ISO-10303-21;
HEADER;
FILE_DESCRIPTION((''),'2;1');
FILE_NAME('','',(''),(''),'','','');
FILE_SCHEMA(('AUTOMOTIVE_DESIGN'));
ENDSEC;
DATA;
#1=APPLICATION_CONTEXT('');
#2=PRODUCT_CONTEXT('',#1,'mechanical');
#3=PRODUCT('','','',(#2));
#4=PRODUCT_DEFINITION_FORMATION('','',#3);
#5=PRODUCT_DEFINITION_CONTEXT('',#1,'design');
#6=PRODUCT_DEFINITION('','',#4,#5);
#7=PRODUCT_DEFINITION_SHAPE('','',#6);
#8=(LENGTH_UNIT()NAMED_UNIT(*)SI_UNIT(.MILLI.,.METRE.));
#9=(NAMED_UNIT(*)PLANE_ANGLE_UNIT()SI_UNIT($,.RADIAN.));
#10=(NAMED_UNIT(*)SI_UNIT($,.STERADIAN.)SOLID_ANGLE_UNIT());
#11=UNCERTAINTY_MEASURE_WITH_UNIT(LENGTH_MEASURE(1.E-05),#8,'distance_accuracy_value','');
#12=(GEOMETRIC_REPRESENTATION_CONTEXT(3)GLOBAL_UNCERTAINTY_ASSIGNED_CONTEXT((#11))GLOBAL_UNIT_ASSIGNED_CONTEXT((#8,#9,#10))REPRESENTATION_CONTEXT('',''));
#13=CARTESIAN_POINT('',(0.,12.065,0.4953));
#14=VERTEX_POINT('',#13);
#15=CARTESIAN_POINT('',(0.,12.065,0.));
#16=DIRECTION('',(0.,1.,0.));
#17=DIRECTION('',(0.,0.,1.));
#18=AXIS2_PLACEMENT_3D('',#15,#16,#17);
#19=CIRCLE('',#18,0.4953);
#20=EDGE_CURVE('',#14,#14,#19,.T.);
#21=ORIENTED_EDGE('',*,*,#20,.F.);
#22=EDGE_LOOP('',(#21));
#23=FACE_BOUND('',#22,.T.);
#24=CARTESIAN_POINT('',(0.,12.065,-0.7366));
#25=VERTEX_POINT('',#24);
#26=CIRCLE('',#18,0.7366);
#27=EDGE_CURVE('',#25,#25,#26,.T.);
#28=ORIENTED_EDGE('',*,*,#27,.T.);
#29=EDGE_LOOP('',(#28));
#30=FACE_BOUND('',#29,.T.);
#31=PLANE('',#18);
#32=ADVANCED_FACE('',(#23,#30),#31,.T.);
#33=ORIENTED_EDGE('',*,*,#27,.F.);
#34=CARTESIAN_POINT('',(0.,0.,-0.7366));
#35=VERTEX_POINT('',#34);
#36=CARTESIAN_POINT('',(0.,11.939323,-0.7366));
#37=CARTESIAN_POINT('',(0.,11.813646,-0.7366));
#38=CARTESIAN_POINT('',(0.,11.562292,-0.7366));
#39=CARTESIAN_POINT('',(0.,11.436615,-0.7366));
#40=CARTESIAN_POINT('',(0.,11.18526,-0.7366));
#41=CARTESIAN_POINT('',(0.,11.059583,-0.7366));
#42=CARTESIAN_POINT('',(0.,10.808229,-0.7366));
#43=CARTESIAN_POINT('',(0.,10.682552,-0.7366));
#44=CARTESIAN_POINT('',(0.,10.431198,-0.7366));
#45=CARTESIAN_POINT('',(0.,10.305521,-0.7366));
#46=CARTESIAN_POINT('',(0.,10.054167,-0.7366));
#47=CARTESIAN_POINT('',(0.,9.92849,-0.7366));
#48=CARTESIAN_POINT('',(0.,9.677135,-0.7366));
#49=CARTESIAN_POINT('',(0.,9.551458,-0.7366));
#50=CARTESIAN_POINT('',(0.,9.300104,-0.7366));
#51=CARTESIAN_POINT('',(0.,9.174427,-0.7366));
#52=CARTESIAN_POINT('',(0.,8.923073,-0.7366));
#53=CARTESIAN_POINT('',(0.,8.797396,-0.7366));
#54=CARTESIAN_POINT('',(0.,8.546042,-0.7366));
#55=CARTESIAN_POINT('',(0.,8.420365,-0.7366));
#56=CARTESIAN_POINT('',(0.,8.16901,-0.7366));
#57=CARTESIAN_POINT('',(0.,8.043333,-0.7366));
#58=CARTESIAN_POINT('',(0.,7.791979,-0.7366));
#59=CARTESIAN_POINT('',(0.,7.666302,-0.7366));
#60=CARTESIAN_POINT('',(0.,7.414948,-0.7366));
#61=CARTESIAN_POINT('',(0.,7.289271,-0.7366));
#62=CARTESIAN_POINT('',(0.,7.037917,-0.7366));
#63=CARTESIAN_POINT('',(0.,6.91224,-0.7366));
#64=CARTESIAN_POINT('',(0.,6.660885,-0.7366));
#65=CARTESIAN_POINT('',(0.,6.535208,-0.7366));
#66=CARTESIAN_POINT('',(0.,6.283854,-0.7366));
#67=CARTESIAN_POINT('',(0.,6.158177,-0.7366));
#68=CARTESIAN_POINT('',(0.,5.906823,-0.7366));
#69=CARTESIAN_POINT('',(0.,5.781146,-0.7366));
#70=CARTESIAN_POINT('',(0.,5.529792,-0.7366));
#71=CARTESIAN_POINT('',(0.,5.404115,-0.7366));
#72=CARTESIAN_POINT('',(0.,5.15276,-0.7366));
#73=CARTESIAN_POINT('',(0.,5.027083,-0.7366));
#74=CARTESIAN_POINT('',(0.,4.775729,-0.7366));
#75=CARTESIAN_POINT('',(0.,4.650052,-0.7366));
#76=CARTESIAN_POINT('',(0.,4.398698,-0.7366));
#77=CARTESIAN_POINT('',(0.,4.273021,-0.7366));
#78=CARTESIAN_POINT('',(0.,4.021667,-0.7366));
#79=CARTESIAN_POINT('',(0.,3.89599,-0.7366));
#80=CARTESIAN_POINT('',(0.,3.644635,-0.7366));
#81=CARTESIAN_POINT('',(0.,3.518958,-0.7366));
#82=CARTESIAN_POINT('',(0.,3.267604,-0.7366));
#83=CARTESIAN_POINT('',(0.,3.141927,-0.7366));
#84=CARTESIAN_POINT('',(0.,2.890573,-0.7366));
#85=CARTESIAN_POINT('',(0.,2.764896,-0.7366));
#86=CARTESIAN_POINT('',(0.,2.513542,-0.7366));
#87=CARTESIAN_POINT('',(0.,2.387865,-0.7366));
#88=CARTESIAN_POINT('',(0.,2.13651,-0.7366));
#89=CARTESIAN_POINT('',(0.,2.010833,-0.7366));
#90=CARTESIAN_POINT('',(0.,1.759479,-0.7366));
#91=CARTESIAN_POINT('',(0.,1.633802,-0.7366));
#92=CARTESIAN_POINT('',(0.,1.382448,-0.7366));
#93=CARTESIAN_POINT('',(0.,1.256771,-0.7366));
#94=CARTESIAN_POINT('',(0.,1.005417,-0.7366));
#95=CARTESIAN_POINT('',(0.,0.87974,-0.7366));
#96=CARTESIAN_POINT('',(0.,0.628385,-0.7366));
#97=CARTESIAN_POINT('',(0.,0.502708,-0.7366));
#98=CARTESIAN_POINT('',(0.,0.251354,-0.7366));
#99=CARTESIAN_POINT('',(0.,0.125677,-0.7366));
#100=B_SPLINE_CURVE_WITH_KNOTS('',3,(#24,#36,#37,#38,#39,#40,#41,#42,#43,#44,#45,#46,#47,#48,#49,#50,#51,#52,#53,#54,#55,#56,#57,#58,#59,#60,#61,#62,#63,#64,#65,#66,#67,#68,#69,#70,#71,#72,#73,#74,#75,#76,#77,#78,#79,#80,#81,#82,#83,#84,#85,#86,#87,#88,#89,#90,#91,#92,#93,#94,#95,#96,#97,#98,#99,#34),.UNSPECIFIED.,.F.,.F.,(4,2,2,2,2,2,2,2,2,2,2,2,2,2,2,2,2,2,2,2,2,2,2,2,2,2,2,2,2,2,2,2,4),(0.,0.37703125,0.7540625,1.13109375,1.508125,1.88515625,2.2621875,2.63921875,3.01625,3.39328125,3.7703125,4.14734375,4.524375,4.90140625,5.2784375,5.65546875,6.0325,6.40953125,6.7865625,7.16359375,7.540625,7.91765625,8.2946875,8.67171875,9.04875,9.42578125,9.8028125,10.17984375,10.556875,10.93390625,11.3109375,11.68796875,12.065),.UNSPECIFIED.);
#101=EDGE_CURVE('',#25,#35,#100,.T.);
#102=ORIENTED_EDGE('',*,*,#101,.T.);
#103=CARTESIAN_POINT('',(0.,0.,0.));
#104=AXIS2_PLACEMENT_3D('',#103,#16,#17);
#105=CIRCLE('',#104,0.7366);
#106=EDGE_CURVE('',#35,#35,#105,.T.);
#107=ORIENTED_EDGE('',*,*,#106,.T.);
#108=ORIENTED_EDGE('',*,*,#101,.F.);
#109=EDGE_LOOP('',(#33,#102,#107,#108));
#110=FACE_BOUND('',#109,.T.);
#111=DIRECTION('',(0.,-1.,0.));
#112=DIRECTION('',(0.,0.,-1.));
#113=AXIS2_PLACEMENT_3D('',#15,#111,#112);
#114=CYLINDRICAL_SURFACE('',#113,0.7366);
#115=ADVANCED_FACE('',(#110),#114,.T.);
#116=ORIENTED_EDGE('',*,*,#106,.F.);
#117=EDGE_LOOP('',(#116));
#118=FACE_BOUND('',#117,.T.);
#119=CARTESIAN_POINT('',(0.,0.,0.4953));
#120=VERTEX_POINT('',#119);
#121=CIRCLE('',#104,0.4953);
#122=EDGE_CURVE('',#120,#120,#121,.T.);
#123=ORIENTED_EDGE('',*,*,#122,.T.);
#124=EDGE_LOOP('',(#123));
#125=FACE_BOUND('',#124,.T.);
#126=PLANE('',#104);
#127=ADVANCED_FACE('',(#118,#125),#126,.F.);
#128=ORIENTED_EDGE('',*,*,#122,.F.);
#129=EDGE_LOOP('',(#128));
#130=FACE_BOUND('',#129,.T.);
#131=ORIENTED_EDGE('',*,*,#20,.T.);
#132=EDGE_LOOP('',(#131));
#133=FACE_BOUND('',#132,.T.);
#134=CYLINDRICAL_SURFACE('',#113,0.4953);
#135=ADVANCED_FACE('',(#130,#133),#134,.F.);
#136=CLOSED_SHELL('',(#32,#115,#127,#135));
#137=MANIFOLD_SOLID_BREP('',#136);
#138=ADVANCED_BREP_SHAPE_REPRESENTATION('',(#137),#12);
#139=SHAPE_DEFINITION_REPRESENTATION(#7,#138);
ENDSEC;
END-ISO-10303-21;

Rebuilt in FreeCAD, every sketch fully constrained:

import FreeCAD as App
import Part
import Sketcher
from FreeCAD import Vector
Q = App.Units.Quantity

doc = App.newDocument("Part")
body = doc.addObject("PartDesign::Body", "Body")

sketch1 = body.newObject("Sketcher::SketchObject", "Sketch")
sketch1.AttachmentSupport = (doc.getObject("XZ_Plane"), [""])
sketch1.MapMode = "FlatFace"
sketch1.addGeometry(Part.Circle(Vector(0, 0, 0), Vector(0, 0, 1), 0.7366), False)
sketch1.addGeometry(Part.Circle(Vector(0, 0, 0), Vector(0, 0, 1), 0.4953), False)
sketch1.addConstraint(Sketcher.Constraint("Coincident", 0, 3, -1, 1))
sketch1.addConstraint(Sketcher.Constraint("Coincident", 1, 3, -1, 1))
sketch1.addConstraint(Sketcher.Constraint("Diameter", 0, Q("0.058 in")))
sketch1.addConstraint(Sketcher.Constraint("Diameter", 1, Q("0.039 in")))
pad1 = body.newObject("PartDesign::Pad", "Pad")
pad1.Profile = sketch1
pad1.Length = Q("0.475 in")
pad1.Reversed = True

doc.recompute()
